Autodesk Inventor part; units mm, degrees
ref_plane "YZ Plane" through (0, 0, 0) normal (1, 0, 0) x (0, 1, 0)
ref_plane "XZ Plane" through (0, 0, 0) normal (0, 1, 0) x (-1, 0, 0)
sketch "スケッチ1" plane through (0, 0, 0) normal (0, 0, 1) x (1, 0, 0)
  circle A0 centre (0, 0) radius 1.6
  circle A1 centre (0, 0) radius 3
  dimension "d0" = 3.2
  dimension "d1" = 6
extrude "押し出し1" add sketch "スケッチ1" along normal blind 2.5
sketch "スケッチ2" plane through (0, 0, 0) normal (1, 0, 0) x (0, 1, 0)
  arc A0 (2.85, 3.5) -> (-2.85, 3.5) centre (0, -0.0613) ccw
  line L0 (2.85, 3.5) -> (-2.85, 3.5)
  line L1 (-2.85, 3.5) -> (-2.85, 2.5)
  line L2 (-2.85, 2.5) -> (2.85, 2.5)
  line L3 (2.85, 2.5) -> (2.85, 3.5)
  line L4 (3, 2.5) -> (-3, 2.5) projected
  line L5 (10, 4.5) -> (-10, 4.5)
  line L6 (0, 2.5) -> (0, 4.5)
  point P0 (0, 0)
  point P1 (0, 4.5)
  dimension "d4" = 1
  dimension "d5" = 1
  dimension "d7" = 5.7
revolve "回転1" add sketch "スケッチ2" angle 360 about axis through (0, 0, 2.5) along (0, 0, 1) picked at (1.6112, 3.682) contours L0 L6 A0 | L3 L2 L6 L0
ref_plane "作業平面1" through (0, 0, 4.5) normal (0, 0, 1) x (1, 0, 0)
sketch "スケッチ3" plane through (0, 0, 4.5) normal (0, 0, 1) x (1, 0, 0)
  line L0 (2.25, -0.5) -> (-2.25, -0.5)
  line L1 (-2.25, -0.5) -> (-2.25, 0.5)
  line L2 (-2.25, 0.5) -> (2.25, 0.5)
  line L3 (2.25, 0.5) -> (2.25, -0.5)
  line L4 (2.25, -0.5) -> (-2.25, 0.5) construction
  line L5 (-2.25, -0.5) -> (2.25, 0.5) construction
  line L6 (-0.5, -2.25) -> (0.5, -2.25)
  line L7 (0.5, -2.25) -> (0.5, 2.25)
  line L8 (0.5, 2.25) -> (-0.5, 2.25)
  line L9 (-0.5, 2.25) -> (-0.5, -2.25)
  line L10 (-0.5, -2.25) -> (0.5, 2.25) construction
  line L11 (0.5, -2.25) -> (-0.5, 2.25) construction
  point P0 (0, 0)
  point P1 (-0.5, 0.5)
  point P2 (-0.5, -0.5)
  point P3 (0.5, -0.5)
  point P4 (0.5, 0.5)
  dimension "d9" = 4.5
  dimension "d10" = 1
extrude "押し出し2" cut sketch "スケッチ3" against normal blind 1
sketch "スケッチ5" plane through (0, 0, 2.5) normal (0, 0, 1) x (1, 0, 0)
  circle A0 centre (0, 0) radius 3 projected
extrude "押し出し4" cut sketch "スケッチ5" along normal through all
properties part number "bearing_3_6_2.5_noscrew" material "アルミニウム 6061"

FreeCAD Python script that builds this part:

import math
import FreeCAD as App
import Part
import Sketcher
from FreeCAD import Vector


def add_polygon(sketch, points):
    """Adds a closed chain of lines whose ends are joined by coincident constraints."""
    first, n = sketch.GeometryCount, len(points)
    for a, b in zip(points, points[1:] + points[:1]):
        sketch.addGeometry(Part.LineSegment(App.Vector(*a, 0), App.Vector(*b, 0)), False)
    for i in range(n):
        sketch.addConstraint(Sketcher.Constraint("Coincident", first + i, 2, first + (i + 1) % n, 1))

doc = App.newDocument("Part")
body = doc.addObject("PartDesign::Body", "Body")

sketch1 = body.newObject("Sketcher::SketchObject", "Sketch")
sketch1.AttachmentSupport = (doc.getObject("XY_Plane"), [""])
sketch1.MapMode = "FlatFace"
sketch1.addGeometry(Part.Circle(Vector(0, 0, 0), Vector(0, 0, 1), 3), False)
sketch1.addGeometry(Part.Circle(Vector(0, 0, 0), Vector(0, 0, 1), 1.6), False)
sketch1.addConstraint(Sketcher.Constraint("Coincident", 0, 3, -1, 1))
sketch1.addConstraint(Sketcher.Constraint("Coincident", 1, 3, -1, 1))
sketch1.addConstraint(Sketcher.Constraint("Diameter", 0, 6.0))
sketch1.addConstraint(Sketcher.Constraint("Diameter", 1, 3.2))
pad1 = body.newObject("PartDesign::Pad", "Pad")
pad1.Profile = sketch1
pad1.Length = 2.5

sketch2 = body.newObject("Sketcher::SketchObject", "Sketch001")
sketch2.AttachmentSupport = (doc.getObject("YZ_Plane"), [""])
sketch2.MapMode = "FlatFace"
sketch2.addGeometry(Part.LineSegment(Vector(0, 4.5, 0), Vector(0, 2.5, 0)), False)
sketch2.addGeometry(Part.LineSegment(Vector(0, 2.5, 0), Vector(2.9, 2.5, 0)), False)
sketch2.addGeometry(Part.LineSegment(Vector(2.9, 2.5, 0), Vector(2.9, 3.5, 0)), False)
sketch2.addGeometry(Part.ArcOfCircle(Part.Circle(Vector(0, -0.1, 0), Vector(0, 0, 1), 4.6), math.radians(51), math.radians(90)), False)
sketch2.addConstraint(Sketcher.Constraint("Coincident", 0, 2, 1, 1))
sketch2.addConstraint(Sketcher.Constraint("Coincident", 1, 2, 2, 1))
sketch2.addConstraint(Sketcher.Constraint("Coincident", 2, 2, 3, 1))
sketch2.addConstraint(Sketcher.Constraint("Coincident", 3, 2, 0, 1))
sketch2.addConstraint(Sketcher.Constraint("Vertical", 0))
sketch2.addConstraint(Sketcher.Constraint("Horizontal", 1))
sketch2.addConstraint(Sketcher.Constraint("Vertical", 2))
sketch2.addConstraint(Sketcher.Constraint("PointOnObject", 3, 3, -2))
sketch2.addConstraint(Sketcher.Constraint("PointOnObject", 0, 2, -2))
sketch2.addConstraint(Sketcher.Constraint("DistanceY", 2, 1, 2, 2, 1.0))
sketch2.addConstraint(Sketcher.Constraint("DistanceY", 2, 2, 3, 2, 1.0))
sketch2.addConstraint(Sketcher.Constraint("DistanceX", 1, 1, 1, 2, 2.85))
sketch2.addConstraint(Sketcher.Constraint("DistanceY", -1, 1, 0, 2, 2.5))
revolution = body.newObject("PartDesign::Revolution", "Revolution")
revolution.Profile = sketch2
revolution.ReferenceAxis = (sketch2, ["V_Axis"])
revolution.Angle = 360

sketch3 = body.newObject("Sketcher::SketchObject", "Sketch002")
sketch3.AttachmentSupport = (doc.getObject("XY_Plane"), [""])
sketch3.MapMode = "FlatFace"
sketch3.AttachmentOffset = App.Placement(Vector(0, 0, 4.5), App.Rotation())
add_polygon(sketch3, [(0.5, -0.5), (2.2, -0.5), (2.2, 0.5), (0.5, 0.5), (0.5, 2.2), (-0.5, 2.2), (-0.5, 0.5), (-2.2, 0.5), (-2.2, -0.5), (-0.5, -0.5), (-0.5, -2.2), (0.5, -2.2)])
sketch3.addConstraint(Sketcher.Constraint("Horizontal", 0))
sketch3.addConstraint(Sketcher.Constraint("Vertical", 1))
sketch3.addConstraint(Sketcher.Constraint("Horizontal", 2))
sketch3.addConstraint(Sketcher.Constraint("Vertical", 3))
sketch3.addConstraint(Sketcher.Constraint("Horizontal", 4))
sketch3.addConstraint(Sketcher.Constraint("Vertical", 5))
sketch3.addConstraint(Sketcher.Constraint("Horizontal", 6))
sketch3.addConstraint(Sketcher.Constraint("Vertical", 7))
sketch3.addConstraint(Sketcher.Constraint("Horizontal", 8))
sketch3.addConstraint(Sketcher.Constraint("Vertical", 9))
sketch3.addConstraint(Sketcher.Constraint("Horizontal", 10))
sketch3.addConstraint(Sketcher.Constraint("Vertical", 11))
sketch3.addConstraint(Sketcher.Constraint("Symmetric", 0, 2, 6, 2, -1, 1))
sketch3.addConstraint(Sketcher.Constraint("Symmetric", 2, 2, 8, 2, -1, 1))
sketch3.addConstraint(Sketcher.Constraint("Symmetric", 4, 2, 10, 2, -1, 1))
sketch3.addConstraint(Sketcher.Constraint("Symmetric", 2, 2, 5, 2, -2))
sketch3.addConstraint(Sketcher.Constraint("Equal", 10, 1))
sketch3.addConstraint(Sketcher.Constraint("Equal", 8, 3))
sketch3.addConstraint(Sketcher.Constraint("DistanceX", 4, 2, 4, 1, 1.0))
sketch3.addConstraint(Sketcher.Constraint("DistanceX", 6, 2, 1, 2, 4.5))
pocket1 = body.newObject("PartDesign::Pocket", "Pocket")
pocket1.Profile = sketch3
pocket1.Length = 1

sketch4 = body.newObject("Sketcher::SketchObject", "Sketch003")
sketch4.AttachmentSupport = (doc.getObject("XY_Plane"), [""])
sketch4.MapMode = "FlatFace"
sketch4.AttachmentOffset = App.Placement(Vector(0, 0, 2.5), App.Rotation())
sketch4.addGeometry(Part.Circle(Vector(0, 0, 0), Vector(0, 0, 1), 3), False)
sketch4.addConstraint(Sketcher.Constraint("Coincident", 0, 3, -1, 1))
sketch4.addConstraint(Sketcher.Constraint("Diameter", 0, 6.0))
pocket2 = body.newObject("PartDesign::Pocket", "Pocket001")
pocket2.Profile = sketch4
pocket2.Type = "ThroughAll"
pocket2.Reversed = True

doc.recompute()
